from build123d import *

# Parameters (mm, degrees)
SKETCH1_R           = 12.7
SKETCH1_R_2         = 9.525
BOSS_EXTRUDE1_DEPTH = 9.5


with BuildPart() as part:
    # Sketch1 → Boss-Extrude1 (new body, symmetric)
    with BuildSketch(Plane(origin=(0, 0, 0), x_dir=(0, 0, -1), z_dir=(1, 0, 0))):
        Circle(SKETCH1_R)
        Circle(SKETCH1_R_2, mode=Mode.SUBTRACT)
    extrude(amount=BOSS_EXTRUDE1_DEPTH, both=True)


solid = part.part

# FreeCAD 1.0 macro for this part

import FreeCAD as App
import Part
import Sketcher
from FreeCAD import Vector
Q = App.Units.Quantity

doc = App.newDocument("Part")
body = doc.addObject("PartDesign::Body", "Body")

sketch1 = body.newObject("Sketcher::SketchObject", "Sketch")
sketch1.AttachmentSupport = (doc.getObject("YZ_Plane"), [""])
sketch1.MapMode = "FlatFace"
sketch1.addGeometry([
    Part.Circle(Vector(0, 0, 0), Vector(0, 0, 1), 12.7),
    Part.Circle(Vector(0, 0, 0), Vector(0, 0, 1), 9.525),
], False)
sketch1.addConstraint([
    Sketcher.Constraint("Coincident", 0, 3, -1, 1),
    Sketcher.Constraint("Coincident", 1, 3, -1, 1),
    Sketcher.Constraint("Diameter", 0, Q("1 in")),
    Sketcher.Constraint("Diameter", 1, Q("0.75 in")),
])
pad1 = body.newObject("PartDesign::Pad", "Pad")
pad1.Profile = sketch1
pad1.Length = 19
pad1.Midplane = True

doc.recompute()
